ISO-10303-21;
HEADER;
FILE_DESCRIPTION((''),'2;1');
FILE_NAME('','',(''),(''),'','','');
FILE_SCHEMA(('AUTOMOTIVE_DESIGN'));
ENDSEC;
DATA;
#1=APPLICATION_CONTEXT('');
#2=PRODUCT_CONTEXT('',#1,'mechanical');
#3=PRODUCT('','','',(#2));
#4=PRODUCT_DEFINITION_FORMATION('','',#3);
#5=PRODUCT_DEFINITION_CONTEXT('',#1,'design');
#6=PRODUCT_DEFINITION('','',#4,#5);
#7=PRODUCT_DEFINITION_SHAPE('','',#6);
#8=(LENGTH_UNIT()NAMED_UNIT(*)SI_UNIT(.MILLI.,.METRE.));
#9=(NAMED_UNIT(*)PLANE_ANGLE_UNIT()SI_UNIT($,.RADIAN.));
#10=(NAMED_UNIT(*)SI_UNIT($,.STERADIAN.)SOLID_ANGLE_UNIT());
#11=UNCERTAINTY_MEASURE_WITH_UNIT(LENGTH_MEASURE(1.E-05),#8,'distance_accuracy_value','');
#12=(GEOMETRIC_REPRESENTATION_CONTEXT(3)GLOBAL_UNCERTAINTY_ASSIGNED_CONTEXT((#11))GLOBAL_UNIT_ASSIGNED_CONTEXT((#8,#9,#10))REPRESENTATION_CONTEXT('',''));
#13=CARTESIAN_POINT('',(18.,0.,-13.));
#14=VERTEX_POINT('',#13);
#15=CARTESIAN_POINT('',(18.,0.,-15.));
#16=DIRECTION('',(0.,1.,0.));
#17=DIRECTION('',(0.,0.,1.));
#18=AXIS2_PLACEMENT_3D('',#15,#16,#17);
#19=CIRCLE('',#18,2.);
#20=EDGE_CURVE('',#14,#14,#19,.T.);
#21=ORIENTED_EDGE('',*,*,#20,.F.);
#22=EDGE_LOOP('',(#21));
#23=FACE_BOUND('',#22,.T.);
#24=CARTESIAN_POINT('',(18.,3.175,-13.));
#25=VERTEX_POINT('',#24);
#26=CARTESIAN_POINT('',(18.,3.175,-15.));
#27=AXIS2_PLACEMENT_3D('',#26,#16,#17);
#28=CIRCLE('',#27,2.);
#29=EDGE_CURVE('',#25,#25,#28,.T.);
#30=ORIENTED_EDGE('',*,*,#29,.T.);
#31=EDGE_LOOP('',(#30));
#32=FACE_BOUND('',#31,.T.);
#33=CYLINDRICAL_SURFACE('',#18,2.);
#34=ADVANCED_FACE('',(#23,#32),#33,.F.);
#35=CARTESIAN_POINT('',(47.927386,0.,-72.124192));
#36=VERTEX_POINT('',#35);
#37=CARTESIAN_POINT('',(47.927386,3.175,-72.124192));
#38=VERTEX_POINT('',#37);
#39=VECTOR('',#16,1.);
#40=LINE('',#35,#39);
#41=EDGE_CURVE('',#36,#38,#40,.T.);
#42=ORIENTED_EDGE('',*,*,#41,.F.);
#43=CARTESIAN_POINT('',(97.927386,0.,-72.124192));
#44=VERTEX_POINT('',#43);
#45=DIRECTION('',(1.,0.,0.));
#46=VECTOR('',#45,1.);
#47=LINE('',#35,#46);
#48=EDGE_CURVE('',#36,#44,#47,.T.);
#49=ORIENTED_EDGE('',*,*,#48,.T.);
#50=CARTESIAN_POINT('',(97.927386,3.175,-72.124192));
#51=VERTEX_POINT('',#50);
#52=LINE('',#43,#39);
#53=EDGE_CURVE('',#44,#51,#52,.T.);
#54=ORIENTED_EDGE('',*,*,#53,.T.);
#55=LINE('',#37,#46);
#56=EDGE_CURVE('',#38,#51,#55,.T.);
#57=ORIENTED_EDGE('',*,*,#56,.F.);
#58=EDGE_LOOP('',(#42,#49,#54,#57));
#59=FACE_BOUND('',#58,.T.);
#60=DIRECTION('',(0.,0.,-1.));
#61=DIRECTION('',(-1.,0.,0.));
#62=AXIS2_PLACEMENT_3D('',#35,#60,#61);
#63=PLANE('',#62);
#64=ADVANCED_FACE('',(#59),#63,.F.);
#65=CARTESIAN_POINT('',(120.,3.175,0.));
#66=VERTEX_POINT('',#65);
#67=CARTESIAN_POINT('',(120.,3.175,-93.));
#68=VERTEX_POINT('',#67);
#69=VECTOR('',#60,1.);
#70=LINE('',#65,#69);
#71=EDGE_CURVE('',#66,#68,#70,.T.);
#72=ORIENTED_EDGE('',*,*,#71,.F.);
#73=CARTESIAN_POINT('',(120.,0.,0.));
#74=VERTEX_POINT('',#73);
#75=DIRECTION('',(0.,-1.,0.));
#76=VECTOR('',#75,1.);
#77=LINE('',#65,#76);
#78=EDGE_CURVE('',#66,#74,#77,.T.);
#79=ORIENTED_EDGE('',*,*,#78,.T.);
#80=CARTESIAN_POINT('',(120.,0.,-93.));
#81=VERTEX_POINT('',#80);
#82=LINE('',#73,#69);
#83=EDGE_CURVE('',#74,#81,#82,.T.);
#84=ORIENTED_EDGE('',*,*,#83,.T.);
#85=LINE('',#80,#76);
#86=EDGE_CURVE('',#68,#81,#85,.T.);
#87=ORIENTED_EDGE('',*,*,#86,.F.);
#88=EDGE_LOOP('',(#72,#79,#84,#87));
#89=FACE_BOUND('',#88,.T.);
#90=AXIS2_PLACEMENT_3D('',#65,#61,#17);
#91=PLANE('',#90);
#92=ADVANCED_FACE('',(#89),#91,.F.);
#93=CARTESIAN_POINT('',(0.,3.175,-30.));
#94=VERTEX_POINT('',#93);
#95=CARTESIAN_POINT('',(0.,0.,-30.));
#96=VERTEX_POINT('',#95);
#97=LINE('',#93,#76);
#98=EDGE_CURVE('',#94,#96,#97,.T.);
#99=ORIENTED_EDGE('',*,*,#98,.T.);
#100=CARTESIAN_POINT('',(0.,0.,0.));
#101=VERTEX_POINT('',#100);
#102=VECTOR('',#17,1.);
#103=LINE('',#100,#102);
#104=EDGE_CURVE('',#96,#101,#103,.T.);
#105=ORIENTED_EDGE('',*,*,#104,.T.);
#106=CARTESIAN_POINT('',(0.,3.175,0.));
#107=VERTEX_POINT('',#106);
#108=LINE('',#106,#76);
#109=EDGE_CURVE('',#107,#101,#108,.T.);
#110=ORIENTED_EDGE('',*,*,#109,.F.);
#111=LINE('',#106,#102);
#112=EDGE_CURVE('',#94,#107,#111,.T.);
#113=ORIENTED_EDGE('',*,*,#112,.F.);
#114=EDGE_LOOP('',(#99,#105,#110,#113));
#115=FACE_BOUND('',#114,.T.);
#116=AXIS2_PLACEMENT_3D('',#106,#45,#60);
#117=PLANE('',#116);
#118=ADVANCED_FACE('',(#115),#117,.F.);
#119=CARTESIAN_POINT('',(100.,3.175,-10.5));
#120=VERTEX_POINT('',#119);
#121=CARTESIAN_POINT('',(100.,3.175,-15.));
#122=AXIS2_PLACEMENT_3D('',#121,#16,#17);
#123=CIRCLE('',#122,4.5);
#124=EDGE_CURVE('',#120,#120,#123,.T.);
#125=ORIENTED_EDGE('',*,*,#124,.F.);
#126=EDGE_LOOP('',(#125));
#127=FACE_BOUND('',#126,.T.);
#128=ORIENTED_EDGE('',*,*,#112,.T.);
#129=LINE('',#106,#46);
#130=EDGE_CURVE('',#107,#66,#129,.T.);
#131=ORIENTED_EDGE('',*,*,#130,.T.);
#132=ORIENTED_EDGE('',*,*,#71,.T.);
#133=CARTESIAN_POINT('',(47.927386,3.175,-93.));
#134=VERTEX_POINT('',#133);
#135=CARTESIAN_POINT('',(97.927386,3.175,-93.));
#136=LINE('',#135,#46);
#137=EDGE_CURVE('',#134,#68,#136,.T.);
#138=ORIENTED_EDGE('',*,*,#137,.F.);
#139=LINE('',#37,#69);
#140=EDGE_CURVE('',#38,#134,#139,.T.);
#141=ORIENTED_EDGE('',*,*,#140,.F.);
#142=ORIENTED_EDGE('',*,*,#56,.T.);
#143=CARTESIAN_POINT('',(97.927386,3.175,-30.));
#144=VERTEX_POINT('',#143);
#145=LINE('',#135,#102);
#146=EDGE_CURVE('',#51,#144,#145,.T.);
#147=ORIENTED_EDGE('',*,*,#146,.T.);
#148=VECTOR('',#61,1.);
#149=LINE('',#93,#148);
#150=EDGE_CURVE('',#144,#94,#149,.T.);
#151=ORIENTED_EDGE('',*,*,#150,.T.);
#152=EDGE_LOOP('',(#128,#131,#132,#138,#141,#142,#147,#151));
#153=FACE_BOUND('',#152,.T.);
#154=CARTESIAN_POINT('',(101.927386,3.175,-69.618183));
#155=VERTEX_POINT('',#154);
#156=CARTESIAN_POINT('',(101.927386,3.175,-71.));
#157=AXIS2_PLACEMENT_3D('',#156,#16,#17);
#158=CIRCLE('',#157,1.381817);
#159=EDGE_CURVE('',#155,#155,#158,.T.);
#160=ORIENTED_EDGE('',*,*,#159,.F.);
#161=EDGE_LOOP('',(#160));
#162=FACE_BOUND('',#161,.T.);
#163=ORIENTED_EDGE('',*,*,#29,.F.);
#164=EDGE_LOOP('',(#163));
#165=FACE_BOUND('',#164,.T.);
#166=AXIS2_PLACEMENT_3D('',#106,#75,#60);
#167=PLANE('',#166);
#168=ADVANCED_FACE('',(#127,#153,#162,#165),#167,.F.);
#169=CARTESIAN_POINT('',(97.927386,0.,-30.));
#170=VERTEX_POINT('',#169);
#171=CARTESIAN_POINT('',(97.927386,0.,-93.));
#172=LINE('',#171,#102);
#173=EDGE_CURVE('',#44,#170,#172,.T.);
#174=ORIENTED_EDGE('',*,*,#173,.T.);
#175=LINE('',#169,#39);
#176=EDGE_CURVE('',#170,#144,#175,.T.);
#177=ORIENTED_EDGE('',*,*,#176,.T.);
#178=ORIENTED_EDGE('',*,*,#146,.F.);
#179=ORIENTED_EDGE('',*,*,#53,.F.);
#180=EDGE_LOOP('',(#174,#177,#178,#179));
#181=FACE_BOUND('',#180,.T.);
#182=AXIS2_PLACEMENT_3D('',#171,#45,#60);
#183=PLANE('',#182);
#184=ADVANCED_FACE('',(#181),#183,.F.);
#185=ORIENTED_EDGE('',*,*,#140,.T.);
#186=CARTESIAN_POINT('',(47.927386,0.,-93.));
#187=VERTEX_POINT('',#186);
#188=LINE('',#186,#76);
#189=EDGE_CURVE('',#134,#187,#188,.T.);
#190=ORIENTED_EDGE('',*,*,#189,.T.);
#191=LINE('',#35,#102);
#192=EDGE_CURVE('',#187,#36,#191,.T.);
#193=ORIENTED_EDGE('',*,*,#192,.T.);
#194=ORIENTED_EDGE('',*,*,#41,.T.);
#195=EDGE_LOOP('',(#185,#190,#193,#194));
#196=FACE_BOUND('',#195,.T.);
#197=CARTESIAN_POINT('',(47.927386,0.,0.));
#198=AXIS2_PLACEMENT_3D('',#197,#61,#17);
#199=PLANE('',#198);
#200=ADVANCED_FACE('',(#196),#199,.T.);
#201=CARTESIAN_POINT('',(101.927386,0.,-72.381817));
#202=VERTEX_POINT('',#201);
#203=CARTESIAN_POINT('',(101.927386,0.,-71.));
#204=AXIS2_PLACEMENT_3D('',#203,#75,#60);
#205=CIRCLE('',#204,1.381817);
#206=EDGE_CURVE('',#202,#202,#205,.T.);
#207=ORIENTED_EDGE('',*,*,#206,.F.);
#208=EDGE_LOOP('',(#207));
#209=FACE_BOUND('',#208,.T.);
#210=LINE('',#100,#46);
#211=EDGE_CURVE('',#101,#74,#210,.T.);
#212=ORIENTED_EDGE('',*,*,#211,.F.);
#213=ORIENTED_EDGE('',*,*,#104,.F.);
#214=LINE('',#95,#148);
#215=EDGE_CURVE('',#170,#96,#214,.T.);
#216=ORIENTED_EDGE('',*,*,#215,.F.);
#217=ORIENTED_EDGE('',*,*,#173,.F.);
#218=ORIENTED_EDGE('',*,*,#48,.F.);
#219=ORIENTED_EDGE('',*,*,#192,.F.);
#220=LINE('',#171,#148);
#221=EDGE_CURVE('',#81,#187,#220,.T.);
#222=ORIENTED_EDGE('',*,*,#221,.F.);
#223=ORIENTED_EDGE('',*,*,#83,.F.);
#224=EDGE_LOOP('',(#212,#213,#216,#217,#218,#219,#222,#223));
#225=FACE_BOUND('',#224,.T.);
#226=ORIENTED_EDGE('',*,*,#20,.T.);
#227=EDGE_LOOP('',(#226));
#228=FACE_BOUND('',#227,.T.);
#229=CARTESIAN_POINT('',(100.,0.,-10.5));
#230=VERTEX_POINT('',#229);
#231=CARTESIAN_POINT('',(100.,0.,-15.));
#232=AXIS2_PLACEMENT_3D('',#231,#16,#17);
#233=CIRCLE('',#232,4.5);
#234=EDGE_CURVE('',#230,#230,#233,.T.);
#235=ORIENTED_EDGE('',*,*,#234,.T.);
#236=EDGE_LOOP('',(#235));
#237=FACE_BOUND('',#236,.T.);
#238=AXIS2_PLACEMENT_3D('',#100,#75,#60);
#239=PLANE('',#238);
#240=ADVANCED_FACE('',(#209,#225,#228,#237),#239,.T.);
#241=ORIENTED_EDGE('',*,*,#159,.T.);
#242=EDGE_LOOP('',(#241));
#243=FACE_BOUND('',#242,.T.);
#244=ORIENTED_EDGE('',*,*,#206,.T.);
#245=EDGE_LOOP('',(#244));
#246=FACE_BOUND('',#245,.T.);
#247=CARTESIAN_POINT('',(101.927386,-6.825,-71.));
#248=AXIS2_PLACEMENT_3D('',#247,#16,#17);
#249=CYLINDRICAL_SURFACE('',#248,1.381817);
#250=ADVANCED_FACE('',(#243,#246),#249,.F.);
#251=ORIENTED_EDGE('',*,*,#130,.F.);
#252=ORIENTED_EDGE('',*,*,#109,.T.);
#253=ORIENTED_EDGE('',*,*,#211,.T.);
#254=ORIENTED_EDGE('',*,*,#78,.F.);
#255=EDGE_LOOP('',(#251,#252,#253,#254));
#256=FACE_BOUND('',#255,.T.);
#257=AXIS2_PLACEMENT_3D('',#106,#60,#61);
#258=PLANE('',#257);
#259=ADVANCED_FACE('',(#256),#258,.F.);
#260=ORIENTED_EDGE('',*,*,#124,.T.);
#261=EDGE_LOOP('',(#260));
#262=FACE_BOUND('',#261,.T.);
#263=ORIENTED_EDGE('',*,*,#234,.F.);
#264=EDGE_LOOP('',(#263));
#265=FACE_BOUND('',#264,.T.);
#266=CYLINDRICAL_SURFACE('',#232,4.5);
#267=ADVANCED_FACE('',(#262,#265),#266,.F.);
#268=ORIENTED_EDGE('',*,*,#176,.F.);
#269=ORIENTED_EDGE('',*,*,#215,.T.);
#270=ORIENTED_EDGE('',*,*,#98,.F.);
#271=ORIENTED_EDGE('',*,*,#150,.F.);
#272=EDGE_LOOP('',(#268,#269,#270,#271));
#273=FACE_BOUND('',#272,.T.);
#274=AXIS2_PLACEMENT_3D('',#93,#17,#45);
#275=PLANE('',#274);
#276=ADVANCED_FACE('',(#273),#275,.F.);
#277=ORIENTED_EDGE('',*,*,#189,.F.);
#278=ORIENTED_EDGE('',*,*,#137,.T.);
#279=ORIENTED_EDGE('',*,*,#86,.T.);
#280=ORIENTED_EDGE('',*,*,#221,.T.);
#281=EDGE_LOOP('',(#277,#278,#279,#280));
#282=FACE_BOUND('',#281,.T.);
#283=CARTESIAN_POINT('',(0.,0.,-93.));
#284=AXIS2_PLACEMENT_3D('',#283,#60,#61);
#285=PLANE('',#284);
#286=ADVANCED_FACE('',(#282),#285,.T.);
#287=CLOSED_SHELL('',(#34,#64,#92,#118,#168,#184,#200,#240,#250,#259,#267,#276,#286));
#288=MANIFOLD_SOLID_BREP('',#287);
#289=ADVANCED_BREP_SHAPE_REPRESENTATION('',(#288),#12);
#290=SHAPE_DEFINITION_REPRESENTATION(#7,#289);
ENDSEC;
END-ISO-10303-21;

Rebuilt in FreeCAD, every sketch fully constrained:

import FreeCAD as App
import Part
import Sketcher

V = App.Vector
Q = App.Units.Quantity

doc = App.newDocument("Part")
body = doc.addObject("PartDesign::Body", "Body")

# Sketch on XZ plane
sketch1 = body.newObject("Sketcher::SketchObject", "Sketch")
sketch1.AttachmentSupport = (doc.getObject("XZ_Plane"), [""])
sketch1.MapMode = "FlatFace"
sketch1.addGeometry([
    Part.LineSegment(V(0, -30, 0), V(0, 0, 0)),
    Part.LineSegment(V(0, 0, 0), V(120, 0, 0)),
    Part.LineSegment(V(120, 0, 0), V(120, -30, 0)),
    Part.LineSegment(V(120, -30, 0), V(0, -30, 0)),
], False)
sketch1.addConstraint([
    Sketcher.Constraint("Coincident", 0, 2, 1, 1),
    Sketcher.Constraint("Coincident", 1, 2, 2, 1),
    Sketcher.Constraint("Coincident", 2, 2, 3, 1),
    Sketcher.Constraint("Coincident", 3, 2, 0, 1),
    Sketcher.Constraint("Vertical", 0),
    Sketcher.Constraint("Horizontal", 1),
    Sketcher.Constraint("Vertical", 2),
    Sketcher.Constraint("Horizontal", 3),
    Sketcher.Constraint("Coincident", 0, 2, -1, 1),
    Sketcher.Constraint("DistanceX", 1, 1, 1, 2, Q("120 mm")),
    Sketcher.Constraint("DistanceY", 0, 1, 0, 2, Q("30 mm")),
])
pad1 = body.newObject("PartDesign::Pad", "Pad")
pad1.Profile = sketch1
pad1.Length = 3.175
pad1.Reversed = True

# Sketch on XZ plane
sketch2 = body.newObject("Sketcher::SketchObject", "Sketch001")
sketch2.AttachmentSupport = (doc.getObject("XZ_Plane"), [""])
sketch2.MapMode = "FlatFace"
sketch2.AttachmentOffset = App.Placement(V(0, 0, -3.175), App.Rotation())
sketch2.addGeometry([
    Part.Circle(V(18, -15, 0), V(0, 0, 1), 2),
    Part.Circle(V(100, -15, 0), V(0, 0, 1), 4.5),
], False)
sketch2.addConstraint([
    Sketcher.Constraint("Horizontal", 0, 3, 1, 3),
    Sketcher.Constraint("Diameter", 0, Q("4 mm")),
    Sketcher.Constraint("Diameter", 1, Q("9 mm")),
    Sketcher.Constraint("DistanceX", -1, 1, 0, 3, Q("18 mm")),
    Sketcher.Constraint("DistanceY", 0, 3, -1, 1, Q("15 mm")),
    Sketcher.Constraint("DistanceX", -1, 1, 1, 3, Q("100 mm")),
])
pocket1 = body.newObject("PartDesign::Pocket", "Pocket")
pocket1.Profile = sketch2
pocket1.Length = 3.175
pocket1.Reversed = True

# Sketch on XY plane
sketch3 = body.newObject("Sketcher::SketchObject", "Sketch002")
sketch3.AttachmentSupport = (doc.getObject("XY_Plane"), [""])
sketch3.MapMode = "FlatFace"
sketch3.AttachmentOffset = App.Placement(V(0, 0, -30), App.Rotation())
sketch3.addGeometry([
    Part.LineSegment(V(120, 3.175, 0), V(120, 0, 0)),
    Part.LineSegment(V(120, 0, 0), V(97.927386, 0, 0)),
    Part.LineSegment(V(97.927386, 0, 0), V(97.927386, 3.175, 0)),
    Part.LineSegment(V(97.927386, 3.175, 0), V(120, 3.175, 0)),
], False)
sketch3.addConstraint([
    Sketcher.Constraint("Coincident", 0, 2, 1, 1),
    Sketcher.Constraint("Coincident", 1, 2, 2, 1),
    Sketcher.Constraint("Coincident", 2, 2, 3, 1),
    Sketcher.Constraint("Coincident", 3, 2, 0, 1),
    Sketcher.Constraint("Vertical", 0),
    Sketcher.Constraint("Horizontal", 1),
    Sketcher.Constraint("Vertical", 2),
    Sketcher.Constraint("Horizontal", 3),
    Sketcher.Constraint("PointOnObject", 0, 2, -1),
    Sketcher.Constraint("DistanceX", -1, 1, 0, 2, Q("120 mm")),
    Sketcher.Constraint("DistanceY", 0, 2, 0, 1, Q("3.175 mm")),
    Sketcher.Constraint("DistanceX", 1, 2, 1, 1, Q("22.072614 mm")),
])
pad2 = body.newObject("PartDesign::Pad", "Pad001")
pad2.Profile = sketch3
pad2.Length = 63
pad2.Reversed = True

# Sketch on XZ plane
sketch4 = body.newObject("Sketcher::SketchObject", "Sketch003")
sketch4.AttachmentSupport = (doc.getObject("XZ_Plane"), [""])
sketch4.MapMode = "FlatFace"
sketch4.AttachmentOffset = App.Placement(V(0, 0, -3.175), App.Rotation())
sketch4.addGeometry(Part.Circle(V(101.927386, -71, 0), V(0, 0, 1), 1.381817), False)
sketch4.addConstraint([
    Sketcher.Constraint("DistanceY", 0, 3, -1, 1, Q("71 mm")),
    Sketcher.Constraint("Diameter", 0, Q("2.763635 mm")),
    Sketcher.Constraint("DistanceX", -1, 1, 0, 3, Q("101.927386 mm")),
])
pocket2 = body.newObject("PartDesign::Pocket", "Pocket001")
pocket2.Profile = sketch4
pocket2.Length = 10
pocket2.Reversed = True

# Sketch on YZ plane
sketch5 = body.newObject("Sketcher::SketchObject", "Sketch004")
sketch5.AttachmentSupport = (doc.getObject("YZ_Plane"), [""])
sketch5.MapMode = "FlatFace"
sketch5.AttachmentOffset = App.Placement(V(0, 0, 97.927386), App.Rotation())
sketch5.addGeometry([
    Part.LineSegment(V(3.175, -93, 0), V(0, -93, 0)),
    Part.LineSegment(V(0, -93, 0), V(0, -72.124192, 0)),
    Part.LineSegment(V(0, -72.124192, 0), V(3.175, -72.124192, 0)),
    Part.LineSegment(V(3.175, -72.124192, 0), V(3.175, -93, 0)),
], False)
sketch5.addConstraint([
    Sketcher.Constraint("Coincident", 0, 2, 1, 1),
    Sketcher.Constraint("Coincident", 1, 2, 2, 1),
    Sketcher.Constraint("Coincident", 2, 2, 3, 1),
    Sketcher.Constraint("Coincident", 3, 2, 0, 1),
    Sketcher.Constraint("Horizontal", 0),
    Sketcher.Constraint("Vertical", 1),
    Sketcher.Constraint("Horizontal", 2),
    Sketcher.Constraint("Vertical", 3),
    Sketcher.Constraint("PointOnObject", 0, 2, -2),
    Sketcher.Constraint("DistanceY", 0, 2, -1, 1, Q("93 mm")),
    Sketcher.Constraint("DistanceX", 0, 2, 0, 1, Q("3.175 mm")),
    Sketcher.Constraint("DistanceY", 1, 1, 1, 2, Q("20.875808 mm")),
])
pad3 = body.newObject("PartDesign::Pad", "Pad002")
pad3.Profile = sketch5
pad3.Length = 50
pad3.Reversed = True

doc.recompute()
